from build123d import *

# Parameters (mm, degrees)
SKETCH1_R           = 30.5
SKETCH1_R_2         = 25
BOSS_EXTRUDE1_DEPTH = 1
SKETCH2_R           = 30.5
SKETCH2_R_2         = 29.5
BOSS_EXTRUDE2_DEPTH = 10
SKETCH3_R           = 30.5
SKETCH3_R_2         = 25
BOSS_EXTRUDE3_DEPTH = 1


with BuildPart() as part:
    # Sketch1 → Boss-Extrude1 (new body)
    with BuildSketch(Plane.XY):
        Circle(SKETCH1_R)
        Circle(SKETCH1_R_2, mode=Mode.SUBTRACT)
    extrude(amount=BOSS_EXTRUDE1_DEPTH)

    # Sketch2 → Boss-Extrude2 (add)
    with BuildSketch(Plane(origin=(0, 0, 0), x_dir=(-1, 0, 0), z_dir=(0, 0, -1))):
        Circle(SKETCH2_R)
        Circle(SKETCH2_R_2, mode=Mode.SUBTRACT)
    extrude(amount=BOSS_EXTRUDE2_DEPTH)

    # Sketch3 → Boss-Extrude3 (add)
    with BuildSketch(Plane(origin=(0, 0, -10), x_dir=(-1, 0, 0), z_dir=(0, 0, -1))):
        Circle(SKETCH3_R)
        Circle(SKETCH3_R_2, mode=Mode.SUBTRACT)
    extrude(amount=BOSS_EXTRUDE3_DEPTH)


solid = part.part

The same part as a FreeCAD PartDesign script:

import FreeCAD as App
import Part
import Sketcher
from FreeCAD import Vector

doc = App.newDocument("Part")
body = doc.addObject("PartDesign::Body", "Body")

# Sketch on XY plane
sketch1 = body.newObject("Sketcher::SketchObject", "Sketch")
sketch1.AttachmentSupport = (doc.getObject("XY_Plane"), [""])
sketch1.MapMode = "FlatFace"
sketch1.addGeometry([
    Part.Circle(Vector(0, 0, 0), Vector(0, 0, 1), 30),
    Part.Circle(Vector(0, 0, 0), Vector(0, 0, 1), 25),
], False)
sketch1.addConstraint([
    Sketcher.Constraint("Coincident", 0, 3, -1, 1),
    Sketcher.Constraint("Coincident", 1, 3, -1, 1),
    Sketcher.Constraint("Diameter", 0, 61.0),
    Sketcher.Constraint("Diameter", 1, 50.0),
])
pad1 = body.newObject("PartDesign::Pad", "Pad")
pad1.Profile = sketch1
pad1.Length = 1

# Sketch on XY plane
sketch2 = body.newObject("Sketcher::SketchObject", "Sketch001")
sketch2.AttachmentSupport = (doc.getObject("XY_Plane"), [""])
sketch2.MapMode = "FlatFace"
sketch2.addGeometry([
    Part.Circle(Vector(0, 0, 0), Vector(0, 0, 1), 30),
    Part.Circle(Vector(0, 0, 0), Vector(0, 0, 1), 30),
], False)
sketch2.addConstraint([
    Sketcher.Constraint("Coincident", 0, 3, -1, 1),
    Sketcher.Constraint("Coincident", 1, 3, -1, 1),
    Sketcher.Constraint("Diameter", 0, 61.0),
    Sketcher.Constraint("Diameter", 1, 59.0),
])
pad2 = body.newObject("PartDesign::Pad", "Pad001")
pad2.Profile = sketch2
pad2.Length = 10
pad2.Reversed = True

# Sketch on XY plane
sketch3 = body.newObject("Sketcher::SketchObject", "Sketch002")
sketch3.AttachmentSupport = (doc.getObject("XY_Plane"), [""])
sketch3.MapMode = "FlatFace"
sketch3.AttachmentOffset = App.Placement(Vector(0, 0, -10), App.Rotation())
sketch3.addGeometry([
    Part.Circle(Vector(0, 0, 0), Vector(0, 0, 1), 30),
    Part.Circle(Vector(0, 0, 0), Vector(0, 0, 1), 25),
], False)
sketch3.addConstraint([
    Sketcher.Constraint("Coincident", 0, 3, -1, 1),
    Sketcher.Constraint("Coincident", 1, 3, -1, 1),
    Sketcher.Constraint("Diameter", 0, 61.0),
    Sketcher.Constraint("Diameter", 1, 50.0),
])
pad3 = body.newObject("PartDesign::Pad", "Pad002")
pad3.Profile = sketch3
pad3.Length = 1
pad3.Reversed = True

doc.recompute()
